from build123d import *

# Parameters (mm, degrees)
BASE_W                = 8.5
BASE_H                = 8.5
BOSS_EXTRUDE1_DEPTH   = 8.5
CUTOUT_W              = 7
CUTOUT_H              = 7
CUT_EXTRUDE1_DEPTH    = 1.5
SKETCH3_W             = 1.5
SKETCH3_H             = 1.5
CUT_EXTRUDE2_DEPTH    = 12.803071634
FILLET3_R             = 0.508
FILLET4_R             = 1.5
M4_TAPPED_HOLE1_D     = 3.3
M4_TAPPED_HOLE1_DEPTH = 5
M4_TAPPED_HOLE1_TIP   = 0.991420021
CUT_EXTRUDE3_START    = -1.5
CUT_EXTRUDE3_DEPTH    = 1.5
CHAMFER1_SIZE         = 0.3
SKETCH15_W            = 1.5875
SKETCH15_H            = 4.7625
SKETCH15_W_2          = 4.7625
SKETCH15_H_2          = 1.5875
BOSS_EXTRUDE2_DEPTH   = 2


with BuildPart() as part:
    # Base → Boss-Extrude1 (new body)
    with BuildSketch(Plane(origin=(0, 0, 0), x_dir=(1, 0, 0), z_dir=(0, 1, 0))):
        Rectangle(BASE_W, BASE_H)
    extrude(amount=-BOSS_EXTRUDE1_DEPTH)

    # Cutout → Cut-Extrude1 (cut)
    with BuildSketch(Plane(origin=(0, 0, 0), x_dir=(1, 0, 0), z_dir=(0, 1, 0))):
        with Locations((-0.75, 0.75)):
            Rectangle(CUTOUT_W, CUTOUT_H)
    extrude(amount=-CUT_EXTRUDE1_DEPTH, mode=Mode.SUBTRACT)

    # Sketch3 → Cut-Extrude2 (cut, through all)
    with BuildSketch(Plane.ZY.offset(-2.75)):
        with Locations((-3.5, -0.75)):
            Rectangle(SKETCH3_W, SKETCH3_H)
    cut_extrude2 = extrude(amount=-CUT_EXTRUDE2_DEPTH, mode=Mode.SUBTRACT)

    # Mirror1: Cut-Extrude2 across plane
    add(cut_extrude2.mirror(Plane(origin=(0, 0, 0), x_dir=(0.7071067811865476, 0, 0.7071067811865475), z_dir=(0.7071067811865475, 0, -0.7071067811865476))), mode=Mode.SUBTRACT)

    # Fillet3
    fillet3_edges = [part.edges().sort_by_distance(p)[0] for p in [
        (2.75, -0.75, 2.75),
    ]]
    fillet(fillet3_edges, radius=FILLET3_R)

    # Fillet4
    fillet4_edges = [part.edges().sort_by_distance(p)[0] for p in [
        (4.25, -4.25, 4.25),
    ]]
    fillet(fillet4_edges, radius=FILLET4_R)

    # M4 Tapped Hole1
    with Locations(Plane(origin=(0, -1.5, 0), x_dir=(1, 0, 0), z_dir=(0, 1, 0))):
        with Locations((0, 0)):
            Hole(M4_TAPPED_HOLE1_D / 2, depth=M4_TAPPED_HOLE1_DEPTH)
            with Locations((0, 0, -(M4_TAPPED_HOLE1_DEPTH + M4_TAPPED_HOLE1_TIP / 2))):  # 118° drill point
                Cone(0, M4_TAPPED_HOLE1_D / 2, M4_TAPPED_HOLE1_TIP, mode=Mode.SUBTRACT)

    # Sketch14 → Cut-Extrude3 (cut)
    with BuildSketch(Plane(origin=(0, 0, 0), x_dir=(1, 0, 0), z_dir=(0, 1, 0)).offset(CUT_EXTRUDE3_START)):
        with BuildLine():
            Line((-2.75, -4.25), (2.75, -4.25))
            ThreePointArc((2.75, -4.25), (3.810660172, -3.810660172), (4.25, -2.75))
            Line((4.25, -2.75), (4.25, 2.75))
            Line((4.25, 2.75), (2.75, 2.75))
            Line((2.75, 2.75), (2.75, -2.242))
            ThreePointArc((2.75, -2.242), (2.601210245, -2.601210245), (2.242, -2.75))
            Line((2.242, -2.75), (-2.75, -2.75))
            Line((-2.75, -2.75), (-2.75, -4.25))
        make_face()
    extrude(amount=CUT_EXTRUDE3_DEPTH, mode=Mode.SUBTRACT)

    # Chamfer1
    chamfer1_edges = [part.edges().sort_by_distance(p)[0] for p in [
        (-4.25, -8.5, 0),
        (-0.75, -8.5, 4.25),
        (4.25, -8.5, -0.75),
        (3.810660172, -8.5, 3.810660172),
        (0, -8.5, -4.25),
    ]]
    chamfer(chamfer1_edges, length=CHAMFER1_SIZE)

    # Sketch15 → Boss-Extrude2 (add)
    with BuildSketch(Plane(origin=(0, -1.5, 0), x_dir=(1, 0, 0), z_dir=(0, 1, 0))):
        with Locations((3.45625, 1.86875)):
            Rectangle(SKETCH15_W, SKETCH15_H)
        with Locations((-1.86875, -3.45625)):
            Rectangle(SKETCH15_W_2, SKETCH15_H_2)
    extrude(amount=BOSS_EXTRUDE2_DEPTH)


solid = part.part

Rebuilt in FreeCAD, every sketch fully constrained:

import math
import FreeCAD as App
import Part
import Sketcher
Q = App.Units.Quantity


def edges_at(feature, points):
    """Names of the edges that pass closest to the given points."""
    edges = feature.Shape.Edges
    near = lambda p: min(range(len(edges)), key=lambda i: edges[i].distToShape(Part.Vertex(*p))[0])
    return sorted({f"Edge{near(p) + 1}" for p in points})


def add_polygon(sketch, points):
    """Adds a closed chain of lines whose ends are joined by coincident constraints."""
    first, n = sketch.GeometryCount, len(points)
    for a, b in zip(points, points[1:] + points[:1]):
        sketch.addGeometry(Part.LineSegment(App.Vector(*a, 0), App.Vector(*b, 0)), False)
    for i in range(n):
        sketch.addConstraint(Sketcher.Constraint("Coincident", first + i, 2, first + (i + 1) % n, 1))

doc = App.newDocument("Part")
body = doc.addObject("PartDesign::Body", "Body")

sketch1 = body.newObject("Sketcher::SketchObject", "Sketch")
sketch1.AttachmentSupport = (doc.getObject("XZ_Plane"), [""])
sketch1.MapMode = "FlatFace"
add_polygon(sketch1, [(-4, -4), (-4, 4), (4, 4), (4, -4)])
sketch1.addConstraint(Sketcher.Constraint("Vertical", 0))
sketch1.addConstraint(Sketcher.Constraint("Horizontal", 1))
sketch1.addConstraint(Sketcher.Constraint("Vertical", 2))
sketch1.addConstraint(Sketcher.Constraint("Horizontal", 3))
sketch1.addConstraint(Sketcher.Constraint("Symmetric", 0, 2, 2, 2, -1, 1))
sketch1.addConstraint(Sketcher.Constraint("Equal", 3, 0))
sketch1.addConstraint(Sketcher.Constraint("DistanceX", 1, 1, 1, 2, Q("8.5 mm")))
pad1 = body.newObject("PartDesign::Pad", "Pad")
pad1.Profile = sketch1
pad1.Length = 8.5

sketch2 = body.newObject("Sketcher::SketchObject", "Sketch001")
sketch2.AttachmentSupport = (doc.getObject("XZ_Plane"), [""])
sketch2.MapMode = "FlatFace"
add_polygon(sketch2, [(-4, -4), (-4, 3), (3, 3), (3, -4)])
sketch2.addConstraint(Sketcher.Constraint("Vertical", 0))
sketch2.addConstraint(Sketcher.Constraint("Horizontal", 1))
sketch2.addConstraint(Sketcher.Constraint("Vertical", 2))
sketch2.addConstraint(Sketcher.Constraint("Horizontal", 3))
sketch2.addConstraint(Sketcher.Constraint("Equal", 3, 0))
sketch2.addConstraint(Sketcher.Constraint("DistanceX", 1, 1, 1, 2, Q("7 mm")))
sketch2.addConstraint(Sketcher.Constraint("DistanceX", 0, 2, -1, 1, Q("4.25 mm")))
sketch2.addConstraint(Sketcher.Constraint("DistanceY", -1, 1, 0, 2, Q("2.75 mm")))
pocket1 = body.newObject("PartDesign::Pocket", "Pocket")
pocket1.Profile = sketch2
pocket1.Length = 1.5
pocket1.Reversed = True

sketch3 = body.newObject("Sketcher::SketchObject", "Sketch002")
sketch3.AttachmentSupport = (doc.getObject("YZ_Plane"), [""])
sketch3.MapMode = "FlatFace"
sketch3.AttachmentOffset = App.Placement(App.Vector(0, 0, 2.75), App.Rotation())
add_polygon(sketch3, [(0, -4.2), (-1.5, -4.2), (-1.5, -2.8), (0, -2.8)])
sketch3.addConstraint(Sketcher.Constraint("Horizontal", 0))
sketch3.addConstraint(Sketcher.Constraint("Vertical", 1))
sketch3.addConstraint(Sketcher.Constraint("Horizontal", 2))
sketch3.addConstraint(Sketcher.Constraint("Vertical", 3))
sketch3.addConstraint(Sketcher.Constraint("PointOnObject", 2, 2, -2))
sketch3.addConstraint(Sketcher.Constraint("Equal", 2, 1))
sketch3.addConstraint(Sketcher.Constraint("DistanceX", 0, 2, 0, 1, Q("1.5 mm")))
sketch3.addConstraint(Sketcher.Constraint("DistanceY", 0, 2, -1, 1, Q("4.25 mm")))
pocket2 = body.newObject("PartDesign::Pocket", "Pocket001")
pocket2.Profile = sketch3
pocket2.Type = "ThroughAll"
pocket2.Reversed = True
doc.recompute()

datumplane = body.newObject("PartDesign::Plane", "DatumPlane")
datumplane.Placement = App.Placement(App.Vector(0, 0, 0), App.Rotation(App.Vector(0.707106781, 0, 0.707106781), App.Vector(0, -1, 0), App.Vector(0.707106781, 0, -0.707106781), "ZXY"))
mirrored = body.newObject("PartDesign::Mirrored", "Mirrored")
mirrored.Originals = [pocket2]
mirrored.MirrorPlane = (datumplane, [""])
body.Tip = mirrored
doc.recompute()

fillet = body.newObject("PartDesign::Fillet", "Fillet")
fillet.Base = (mirrored, edges_at(mirrored, [(2.75, -0.75, 2.75)]))
fillet.Radius = 0.508
doc.recompute()

fillet2 = body.newObject("PartDesign::Fillet", "Fillet001")
fillet2.Base = (fillet, edges_at(fillet, [(4.25, -4.25, 4.25)]))
fillet2.Radius = 1.5

sketch4 = body.newObject("Sketcher::SketchObject", "Sketch003")
sketch4.AttachmentSupport = (doc.getObject("XZ_Plane"), [""])
sketch4.MapMode = "FlatFace"
sketch4.AttachmentOffset = App.Placement(App.Vector(0, 0, 1.5), App.Rotation())
sketch4.addGeometry(Part.Circle(App.Vector(0, 0, 0), App.Vector(0, 0, 1), 1.6), False)
sketch4.addConstraint(Sketcher.Constraint("Coincident", 0, 3, -1, 1))
sketch4.addConstraint(Sketcher.Constraint("Diameter", 0, Q("3.3 mm")))
doc.recompute()
hole = body.newObject("PartDesign::Hole", "Hole")
hole.Profile = sketch4
hole.ThreadType = "None"
hole.Diameter = 3.3
hole.DepthType = "Dimension"
hole.Depth = 5
hole.DrillPoint = "Angled"
hole.DrillPointAngle = 118
hole.Reversed = True

sketch5 = body.newObject("Sketcher::SketchObject", "Sketch004")
sketch5.AttachmentSupport = (doc.getObject("XZ_Plane"), [""])
sketch5.MapMode = "FlatFace"
sketch5.AttachmentOffset = App.Placement(App.Vector(0, 0, 1.5), App.Rotation())
sketch5.addGeometry(Part.LineSegment(App.Vector(-2.8, 4.2, 0), App.Vector(2.8, 4.2, 0)), False)
sketch5.addGeometry(Part.ArcOfCircle(Part.Circle(App.Vector(2.8, 2.8, 0), App.Vector(0, 0, 1), 1.5), math.radians(0), math.radians(90)), False)
sketch5.addGeometry(Part.LineSegment(App.Vector(4.2, 2.8, 0), App.Vector(4.2, -2.8, 0)), False)
sketch5.addGeometry(Part.LineSegment(App.Vector(4.2, -2.8, 0), App.Vector(2.8, -2.8, 0)), False)
sketch5.addGeometry(Part.LineSegment(App.Vector(2.8, -2.8, 0), App.Vector(2.8, 2.2, 0)), False)
sketch5.addGeometry(Part.ArcOfCircle(Part.Circle(App.Vector(2.2, 2.2, 0), App.Vector(0, 0, 1), 0.5), math.radians(0), math.radians(90)), False)
sketch5.addGeometry(Part.LineSegment(App.Vector(2.2, 2.8, 0), App.Vector(-2.8, 2.8, 0)), False)
sketch5.addGeometry(Part.LineSegment(App.Vector(-2.8, 2.8, 0), App.Vector(-2.8, 4.2, 0)), False)
sketch5.addConstraint(Sketcher.Constraint("Tangent", 0, 2, 1, 2))
sketch5.addConstraint(Sketcher.Constraint("Tangent", 1, 1, 2, 1))
sketch5.addConstraint(Sketcher.Constraint("Coincident", 2, 2, 3, 1))
sketch5.addConstraint(Sketcher.Constraint("Coincident", 3, 2, 4, 1))
sketch5.addConstraint(Sketcher.Constraint("Tangent", 4, 2, 5, 1))
sketch5.addConstraint(Sketcher.Constraint("Tangent", 5, 2, 6, 1))
sketch5.addConstraint(Sketcher.Constraint("Coincident", 6, 2, 7, 1))
sketch5.addConstraint(Sketcher.Constraint("Coincident", 7, 2, 0, 1))
sketch5.addConstraint(Sketcher.Constraint("Horizontal", 0))
sketch5.addConstraint(Sketcher.Constraint("Vertical", 2))
sketch5.addConstraint(Sketcher.Constraint("Horizontal", 3))
sketch5.addConstraint(Sketcher.Constraint("Vertical", 4))
sketch5.addConstraint(Sketcher.Constraint("Horizontal", 6))
sketch5.addConstraint(Sketcher.Constraint("Vertical", 7))
sketch5.addConstraint(Sketcher.Constraint("Symmetric", 3, 2, 6, 2, -1, 1))
sketch5.addConstraint(Sketcher.Constraint("Horizontal", 1, 1, 5, 2))
sketch5.addConstraint(Sketcher.Constraint("Vertical", 0, 2, 3, 2))
sketch5.addConstraint(Sketcher.Constraint("Equal", 0, 2))
sketch5.addConstraint(Sketcher.Constraint("Radius", 1, Q("1.5 mm")))
sketch5.addConstraint(Sketcher.Constraint("DistanceX", 0, 1, 0, 2, Q("5.5 mm")))
sketch5.addConstraint(Sketcher.Constraint("Radius", 5, Q("0.508 mm")))
pocket3 = body.newObject("PartDesign::Pocket", "Pocket002")
pocket3.Profile = sketch5
pocket3.Length = 1.5
doc.recompute()

chamfer = body.newObject("PartDesign::Chamfer", "Chamfer")
chamfer.Base = (pocket3, edges_at(pocket3, [
    (-4.25, -8.5, 0),
    (-0.75, -8.5, 4.25),
    (4.25, -8.5, -0.75),
    (3.811, -8.5, 3.811),
    (0, -8.5, -4.25),
]))
chamfer.Size = 0.3

sketch6 = body.newObject("Sketcher::SketchObject", "Sketch005")
sketch6.AttachmentSupport = (doc.getObject("XZ_Plane"), [""])
sketch6.MapMode = "FlatFace"
sketch6.AttachmentOffset = App.Placement(App.Vector(0, 0, 1.5), App.Rotation())
add_polygon(sketch6, [(2.7, -4.2), (2.7, 0.5), (4.2, 0.5), (4.2, -4.2)])
add_polygon(sketch6, [(-4.2, 2.7), (-4.2, 4.2), (0.5, 4.2), (0.5, 2.7)])
sketch6.addConstraint(Sketcher.Constraint("Vertical", 0))
sketch6.addConstraint(Sketcher.Constraint("Horizontal", 1))
sketch6.addConstraint(Sketcher.Constraint("Vertical", 2))
sketch6.addConstraint(Sketcher.Constraint("Horizontal", 3))
sketch6.addConstraint(Sketcher.Constraint("Vertical", 4))
sketch6.addConstraint(Sketcher.Constraint("Horizontal", 5))
sketch6.addConstraint(Sketcher.Constraint("Vertical", 6))
sketch6.addConstraint(Sketcher.Constraint("Horizontal", 7))
sketch6.addConstraint(Sketcher.Constraint("Symmetric", 2, 2, 4, 2, -1, 1))
sketch6.addConstraint(Sketcher.Constraint("Equal", 7, 0))
sketch6.addConstraint(Sketcher.Constraint("Equal", 3, 4))
sketch6.addConstraint(Sketcher.Constraint("DistanceX", 4, 2, 1, 2, Q("8.5 mm")))
sketch6.addConstraint(Sketcher.Constraint("DistanceY", 3, 2, 4, 2, Q("8.5 mm")))
sketch6.addConstraint(Sketcher.Constraint("DistanceX", 5, 2, 0, 2, Q("2.15 mm")))
sketch6.addConstraint(Sketcher.Constraint("DistanceX", 1, 1, 1, 2, Q("1.5875 mm")))
pad2 = body.newObject("PartDesign::Pad", "Pad001")
pad2.Profile = sketch6
pad2.Length = 2
pad2.Reversed = True

doc.recompute()
